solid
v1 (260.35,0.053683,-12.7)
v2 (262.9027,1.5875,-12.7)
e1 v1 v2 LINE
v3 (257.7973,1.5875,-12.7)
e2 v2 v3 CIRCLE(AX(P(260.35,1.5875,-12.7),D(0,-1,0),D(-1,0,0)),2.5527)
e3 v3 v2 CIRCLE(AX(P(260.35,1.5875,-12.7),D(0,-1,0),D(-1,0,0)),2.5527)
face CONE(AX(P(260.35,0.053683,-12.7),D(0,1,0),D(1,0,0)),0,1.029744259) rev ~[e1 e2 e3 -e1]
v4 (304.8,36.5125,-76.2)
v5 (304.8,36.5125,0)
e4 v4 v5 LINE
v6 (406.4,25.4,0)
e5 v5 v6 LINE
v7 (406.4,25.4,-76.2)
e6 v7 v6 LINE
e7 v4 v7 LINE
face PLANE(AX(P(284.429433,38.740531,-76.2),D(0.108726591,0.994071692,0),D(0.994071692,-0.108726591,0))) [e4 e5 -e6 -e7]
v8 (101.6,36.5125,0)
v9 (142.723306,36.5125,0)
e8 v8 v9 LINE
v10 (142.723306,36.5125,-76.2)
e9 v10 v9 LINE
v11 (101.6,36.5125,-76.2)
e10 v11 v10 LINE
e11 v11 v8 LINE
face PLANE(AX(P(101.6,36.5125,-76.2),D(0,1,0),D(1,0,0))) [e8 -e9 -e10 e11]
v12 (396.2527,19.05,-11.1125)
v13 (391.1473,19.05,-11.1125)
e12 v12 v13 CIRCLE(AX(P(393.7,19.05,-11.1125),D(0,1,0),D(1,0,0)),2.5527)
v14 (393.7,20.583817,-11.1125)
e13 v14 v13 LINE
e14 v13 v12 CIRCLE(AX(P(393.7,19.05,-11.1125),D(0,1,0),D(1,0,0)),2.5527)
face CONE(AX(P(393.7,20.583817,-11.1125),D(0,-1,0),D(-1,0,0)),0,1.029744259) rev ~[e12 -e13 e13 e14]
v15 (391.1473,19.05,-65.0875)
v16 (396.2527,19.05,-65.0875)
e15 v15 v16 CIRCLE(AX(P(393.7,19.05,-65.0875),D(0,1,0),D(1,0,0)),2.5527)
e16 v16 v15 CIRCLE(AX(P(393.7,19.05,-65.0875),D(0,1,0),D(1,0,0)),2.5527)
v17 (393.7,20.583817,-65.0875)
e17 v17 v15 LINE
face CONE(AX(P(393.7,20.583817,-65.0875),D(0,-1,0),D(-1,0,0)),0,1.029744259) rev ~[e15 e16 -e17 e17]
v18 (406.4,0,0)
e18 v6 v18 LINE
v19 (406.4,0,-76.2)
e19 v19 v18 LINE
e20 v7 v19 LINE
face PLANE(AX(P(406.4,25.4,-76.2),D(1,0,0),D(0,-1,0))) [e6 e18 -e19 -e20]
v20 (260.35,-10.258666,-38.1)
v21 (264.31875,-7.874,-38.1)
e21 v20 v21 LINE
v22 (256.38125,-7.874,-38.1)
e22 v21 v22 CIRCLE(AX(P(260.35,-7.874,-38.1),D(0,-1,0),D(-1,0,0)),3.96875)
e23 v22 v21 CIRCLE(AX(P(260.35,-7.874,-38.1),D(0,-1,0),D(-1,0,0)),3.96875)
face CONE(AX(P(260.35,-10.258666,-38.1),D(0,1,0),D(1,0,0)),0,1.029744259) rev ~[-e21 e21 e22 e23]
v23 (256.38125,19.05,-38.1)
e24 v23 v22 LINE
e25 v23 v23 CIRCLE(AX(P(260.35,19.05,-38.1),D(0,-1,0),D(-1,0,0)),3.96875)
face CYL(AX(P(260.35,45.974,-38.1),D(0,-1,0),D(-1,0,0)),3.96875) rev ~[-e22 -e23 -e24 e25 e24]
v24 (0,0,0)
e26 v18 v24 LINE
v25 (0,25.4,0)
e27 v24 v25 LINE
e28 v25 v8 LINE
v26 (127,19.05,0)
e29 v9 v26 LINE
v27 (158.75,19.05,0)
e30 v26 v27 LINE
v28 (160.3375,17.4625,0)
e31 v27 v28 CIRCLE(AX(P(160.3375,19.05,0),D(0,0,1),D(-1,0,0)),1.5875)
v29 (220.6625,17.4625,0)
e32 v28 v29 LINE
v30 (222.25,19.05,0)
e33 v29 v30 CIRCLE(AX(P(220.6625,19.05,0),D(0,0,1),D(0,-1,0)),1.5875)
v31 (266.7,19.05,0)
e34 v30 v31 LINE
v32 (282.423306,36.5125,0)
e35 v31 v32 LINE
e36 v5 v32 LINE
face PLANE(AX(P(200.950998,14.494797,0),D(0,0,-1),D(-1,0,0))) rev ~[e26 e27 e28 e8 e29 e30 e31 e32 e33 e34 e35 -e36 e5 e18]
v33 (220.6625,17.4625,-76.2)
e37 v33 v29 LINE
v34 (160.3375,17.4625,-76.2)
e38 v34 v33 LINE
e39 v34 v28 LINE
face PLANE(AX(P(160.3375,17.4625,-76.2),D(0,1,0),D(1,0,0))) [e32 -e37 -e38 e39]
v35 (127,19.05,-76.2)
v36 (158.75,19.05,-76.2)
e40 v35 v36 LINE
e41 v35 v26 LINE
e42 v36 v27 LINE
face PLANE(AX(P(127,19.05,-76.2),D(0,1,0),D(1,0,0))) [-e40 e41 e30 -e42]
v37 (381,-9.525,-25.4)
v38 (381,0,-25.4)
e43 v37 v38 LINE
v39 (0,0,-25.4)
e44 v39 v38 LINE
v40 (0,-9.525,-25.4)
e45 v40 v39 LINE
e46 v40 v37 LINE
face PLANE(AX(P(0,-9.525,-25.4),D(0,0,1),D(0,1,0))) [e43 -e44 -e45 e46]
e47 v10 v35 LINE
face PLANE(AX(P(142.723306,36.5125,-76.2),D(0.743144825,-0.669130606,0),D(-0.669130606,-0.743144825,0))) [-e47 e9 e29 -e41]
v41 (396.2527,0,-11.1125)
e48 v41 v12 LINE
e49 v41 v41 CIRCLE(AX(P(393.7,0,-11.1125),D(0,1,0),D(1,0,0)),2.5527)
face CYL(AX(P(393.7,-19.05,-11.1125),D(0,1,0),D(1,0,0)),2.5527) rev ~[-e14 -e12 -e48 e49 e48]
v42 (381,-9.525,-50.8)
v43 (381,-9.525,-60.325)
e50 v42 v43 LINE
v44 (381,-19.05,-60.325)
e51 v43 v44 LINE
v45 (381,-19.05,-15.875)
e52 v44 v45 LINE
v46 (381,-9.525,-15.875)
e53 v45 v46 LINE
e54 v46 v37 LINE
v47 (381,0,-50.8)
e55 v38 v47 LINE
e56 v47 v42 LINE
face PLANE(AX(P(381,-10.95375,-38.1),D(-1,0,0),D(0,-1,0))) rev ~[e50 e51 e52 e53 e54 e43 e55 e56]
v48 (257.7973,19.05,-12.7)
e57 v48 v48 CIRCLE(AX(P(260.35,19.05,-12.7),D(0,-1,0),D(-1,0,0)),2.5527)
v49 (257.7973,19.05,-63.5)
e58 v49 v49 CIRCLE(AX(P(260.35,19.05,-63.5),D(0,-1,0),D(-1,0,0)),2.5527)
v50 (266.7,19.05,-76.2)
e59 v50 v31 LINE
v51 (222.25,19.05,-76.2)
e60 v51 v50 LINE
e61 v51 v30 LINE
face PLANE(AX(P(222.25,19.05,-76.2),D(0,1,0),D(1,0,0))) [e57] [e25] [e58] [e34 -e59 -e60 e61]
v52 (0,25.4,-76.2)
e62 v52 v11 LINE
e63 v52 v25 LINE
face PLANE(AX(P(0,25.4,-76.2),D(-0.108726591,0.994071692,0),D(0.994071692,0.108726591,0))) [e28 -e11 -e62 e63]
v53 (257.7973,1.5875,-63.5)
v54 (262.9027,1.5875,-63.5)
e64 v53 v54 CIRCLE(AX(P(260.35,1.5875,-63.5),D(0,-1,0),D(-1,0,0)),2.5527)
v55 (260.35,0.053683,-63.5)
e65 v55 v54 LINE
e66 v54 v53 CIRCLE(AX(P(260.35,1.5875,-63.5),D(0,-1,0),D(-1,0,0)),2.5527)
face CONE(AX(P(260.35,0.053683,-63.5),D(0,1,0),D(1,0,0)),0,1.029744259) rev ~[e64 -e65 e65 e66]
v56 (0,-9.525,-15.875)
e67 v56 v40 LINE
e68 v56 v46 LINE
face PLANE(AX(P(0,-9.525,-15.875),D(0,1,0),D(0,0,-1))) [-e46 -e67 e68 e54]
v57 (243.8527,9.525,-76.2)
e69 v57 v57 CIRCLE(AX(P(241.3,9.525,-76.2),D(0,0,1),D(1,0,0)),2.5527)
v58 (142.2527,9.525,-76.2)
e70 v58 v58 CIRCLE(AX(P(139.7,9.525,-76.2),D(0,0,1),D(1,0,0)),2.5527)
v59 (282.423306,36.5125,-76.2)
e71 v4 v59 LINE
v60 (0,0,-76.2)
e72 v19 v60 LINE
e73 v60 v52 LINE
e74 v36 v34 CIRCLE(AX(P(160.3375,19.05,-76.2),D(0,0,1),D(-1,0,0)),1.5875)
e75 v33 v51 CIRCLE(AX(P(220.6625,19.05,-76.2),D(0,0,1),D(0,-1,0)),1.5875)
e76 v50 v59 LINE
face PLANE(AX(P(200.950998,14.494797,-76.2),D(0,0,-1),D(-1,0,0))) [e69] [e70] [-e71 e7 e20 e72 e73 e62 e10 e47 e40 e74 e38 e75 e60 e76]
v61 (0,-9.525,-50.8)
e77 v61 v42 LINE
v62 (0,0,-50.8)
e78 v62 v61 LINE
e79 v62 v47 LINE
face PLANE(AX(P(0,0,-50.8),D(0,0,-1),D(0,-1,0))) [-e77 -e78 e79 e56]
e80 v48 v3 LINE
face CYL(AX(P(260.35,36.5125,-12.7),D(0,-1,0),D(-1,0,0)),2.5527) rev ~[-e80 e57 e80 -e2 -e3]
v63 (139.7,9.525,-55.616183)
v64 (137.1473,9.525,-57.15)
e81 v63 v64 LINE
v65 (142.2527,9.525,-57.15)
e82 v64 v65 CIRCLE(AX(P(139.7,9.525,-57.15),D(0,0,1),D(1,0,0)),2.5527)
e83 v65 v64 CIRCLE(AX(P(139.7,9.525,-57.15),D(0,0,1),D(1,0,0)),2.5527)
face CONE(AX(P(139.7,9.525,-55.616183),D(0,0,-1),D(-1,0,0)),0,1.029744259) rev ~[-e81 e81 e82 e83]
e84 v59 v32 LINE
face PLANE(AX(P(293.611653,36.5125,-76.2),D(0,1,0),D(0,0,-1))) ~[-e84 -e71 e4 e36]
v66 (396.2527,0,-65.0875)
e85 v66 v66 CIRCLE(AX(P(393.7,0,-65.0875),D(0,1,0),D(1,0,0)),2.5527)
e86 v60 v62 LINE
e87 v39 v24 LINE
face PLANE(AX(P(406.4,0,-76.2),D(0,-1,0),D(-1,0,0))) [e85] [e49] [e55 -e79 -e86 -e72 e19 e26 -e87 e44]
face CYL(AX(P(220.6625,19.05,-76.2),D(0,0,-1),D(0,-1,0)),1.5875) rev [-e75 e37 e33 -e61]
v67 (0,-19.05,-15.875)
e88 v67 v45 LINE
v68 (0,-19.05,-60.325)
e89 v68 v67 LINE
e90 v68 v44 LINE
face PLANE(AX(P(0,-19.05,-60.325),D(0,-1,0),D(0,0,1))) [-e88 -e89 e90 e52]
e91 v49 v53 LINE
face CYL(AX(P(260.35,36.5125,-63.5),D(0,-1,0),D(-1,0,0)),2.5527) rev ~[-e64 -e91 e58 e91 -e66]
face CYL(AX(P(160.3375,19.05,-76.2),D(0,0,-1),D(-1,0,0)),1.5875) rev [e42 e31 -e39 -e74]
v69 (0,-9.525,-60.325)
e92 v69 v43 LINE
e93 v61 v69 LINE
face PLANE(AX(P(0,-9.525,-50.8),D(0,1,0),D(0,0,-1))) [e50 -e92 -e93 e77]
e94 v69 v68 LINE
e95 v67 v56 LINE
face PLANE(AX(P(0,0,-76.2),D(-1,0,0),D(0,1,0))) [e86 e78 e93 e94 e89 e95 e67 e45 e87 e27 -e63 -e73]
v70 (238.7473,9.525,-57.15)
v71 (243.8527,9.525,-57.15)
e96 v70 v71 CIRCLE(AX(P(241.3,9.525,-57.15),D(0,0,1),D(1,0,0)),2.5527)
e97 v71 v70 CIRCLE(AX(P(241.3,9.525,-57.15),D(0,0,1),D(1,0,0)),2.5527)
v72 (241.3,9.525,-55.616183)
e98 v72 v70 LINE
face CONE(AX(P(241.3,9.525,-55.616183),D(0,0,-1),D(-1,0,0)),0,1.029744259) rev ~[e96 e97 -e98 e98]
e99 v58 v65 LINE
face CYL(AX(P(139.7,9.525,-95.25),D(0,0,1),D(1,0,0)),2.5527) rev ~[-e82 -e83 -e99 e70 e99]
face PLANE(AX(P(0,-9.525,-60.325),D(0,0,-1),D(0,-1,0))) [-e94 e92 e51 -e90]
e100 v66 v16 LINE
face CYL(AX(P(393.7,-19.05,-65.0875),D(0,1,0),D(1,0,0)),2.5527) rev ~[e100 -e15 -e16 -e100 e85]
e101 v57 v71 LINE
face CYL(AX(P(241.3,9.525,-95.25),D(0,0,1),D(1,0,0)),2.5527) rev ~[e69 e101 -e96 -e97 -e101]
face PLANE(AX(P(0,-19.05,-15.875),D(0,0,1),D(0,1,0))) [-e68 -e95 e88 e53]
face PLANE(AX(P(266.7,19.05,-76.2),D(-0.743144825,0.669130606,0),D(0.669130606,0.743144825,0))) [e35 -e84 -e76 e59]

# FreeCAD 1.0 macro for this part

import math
import FreeCAD as App
import Part
import Sketcher
from FreeCAD import Vector
Q = App.Units.Quantity


def edges_at(feature, points):
    """Names of the edges that pass closest to the given points."""
    edges = feature.Shape.Edges
    near = lambda p: min(range(len(edges)), key=lambda i: edges[i].distToShape(Part.Vertex(*p))[0])
    return sorted({f"Edge{near(p) + 1}" for p in points})

doc = App.newDocument("Part")
body = doc.addObject("PartDesign::Body", "Body")

# Sketch on XY plane
sketch1 = body.newObject("Sketcher::SketchObject", "Sketch")
sketch1.AttachmentSupport = (doc.getObject("XY_Plane"), [""])
sketch1.MapMode = "FlatFace"
sketch1.AttachmentOffset = App.Placement(Vector(0, 0, -3 * 25.4), App.Rotation())
sketch1.addGeometry(Part.LineSegment(Vector(0, 0, 0), Vector(0, 25.4, 0)), False)
sketch1.addGeometry(Part.LineSegment(Vector(0, 25.4, 0), Vector(101.6, 36.5, 0)), False)
sketch1.addGeometry(Part.LineSegment(Vector(101.6, 36.5, 0), Vector(142.7, 36.5, 0)), False)
sketch1.addGeometry(Part.LineSegment(Vector(142.7, 36.5, 0), Vector(127, 19.1, 0)), False)
sketch1.addGeometry(Part.LineSegment(Vector(127, 19.1, 0), Vector(158.8, 19.1, 0)), False)
sketch1.addGeometry(Part.ArcOfCircle(Part.Circle(Vector(160.3, 19.1, 0), Vector(0, 0, 1), 1.6), math.radians(180), math.radians(270)), False)
sketch1.addGeometry(Part.LineSegment(Vector(160.3, 17.5, 0), Vector(220.7, 17.5, 0)), False)
sketch1.addGeometry(Part.ArcOfCircle(Part.Circle(Vector(220.7, 19.1, 0), Vector(0, 0, 1), 1.6), math.radians(-90), math.radians(0)), False)
sketch1.addGeometry(Part.LineSegment(Vector(222.2, 19.1, 0), Vector(266.7, 19.1, 0)), False)
sketch1.addGeometry(Part.LineSegment(Vector(266.7, 19.1, 0), Vector(284.4, 38.7, 0)), False)
sketch1.addGeometry(Part.LineSegment(Vector(284.4, 38.7, 0), Vector(406.4, 25.4, 0)), False)
sketch1.addGeometry(Part.LineSegment(Vector(406.4, 25.4, 0), Vector(406.4, 0, 0)), False)
sketch1.addGeometry(Part.LineSegment(Vector(406.4, 0, 0), Vector(0, 0, 0)), False)
sketch1.addConstraint(Sketcher.Constraint("Coincident", 0, 2, 1, 1))
sketch1.addConstraint(Sketcher.Constraint("Coincident", 1, 2, 2, 1))
sketch1.addConstraint(Sketcher.Constraint("Coincident", 2, 2, 3, 1))
sketch1.addConstraint(Sketcher.Constraint("Coincident", 3, 2, 4, 1))
sketch1.addConstraint(Sketcher.Constraint("Coincident", 4, 2, 5, 1))
sketch1.addConstraint(Sketcher.Constraint("Tangent", 5, 2, 6, 1))
sketch1.addConstraint(Sketcher.Constraint("Tangent", 6, 2, 7, 1))
sketch1.addConstraint(Sketcher.Constraint("Coincident", 7, 2, 8, 1))
sketch1.addConstraint(Sketcher.Constraint("Coincident", 8, 2, 9, 1))
sketch1.addConstraint(Sketcher.Constraint("Coincident", 9, 2, 10, 1))
sketch1.addConstraint(Sketcher.Constraint("Coincident", 10, 2, 11, 1))
sketch1.addConstraint(Sketcher.Constraint("Coincident", 11, 2, 12, 1))
sketch1.addConstraint(Sketcher.Constraint("Coincident", 12, 2, 0, 1))
sketch1.addConstraint(Sketcher.Constraint("Vertical", 0))
sketch1.addConstraint(Sketcher.Constraint("Horizontal", 2))
sketch1.addConstraint(Sketcher.Constraint("Horizontal", 4))
sketch1.addConstraint(Sketcher.Constraint("Horizontal", 6))
sketch1.addConstraint(Sketcher.Constraint("Horizontal", 8))
sketch1.addConstraint(Sketcher.Constraint("Vertical", 11))
sketch1.addConstraint(Sketcher.Constraint("Horizontal", 12))
sketch1.addConstraint(Sketcher.Constraint("Coincident", 12, 2, -1, 1))
sketch1.addConstraint(Sketcher.Constraint("Equal", 5, 7))
sketch1.addConstraint(Sketcher.Constraint("Parallel", 3, 9))
sketch1.addConstraint(Sketcher.Constraint("Horizontal", 7, 3, 3, 2))
sketch1.addConstraint(Sketcher.Constraint("Horizontal", 4, 2, 7, 2))
sketch1.addConstraint(Sketcher.Constraint("Horizontal", 0, 2, 10, 2))
sketch1.addConstraint(Sketcher.Constraint("DistanceX", 12, 2, 12, 1, Q("16 in")))
sketch1.addConstraint(Sketcher.Constraint("DistanceY", 0, 1, 0, 2, Q("1 in")))
sketch1.addConstraint(Sketcher.Constraint("DistanceX", -1, 1, 1, 2, Q("4 in")))
sketch1.addConstraint(Sketcher.Constraint("DistanceX", -1, 1, 3, 2, Q("5 in")))
sketch1.addConstraint(Sketcher.Constraint("Angle", 3, Q("-132 deg")))
sketch1.addConstraint(Sketcher.Constraint("Radius", 5, Q("0.0625 in")))
sketch1.addConstraint(Sketcher.Constraint("DistanceX", 4, 1, 4, 2, Q("1.25 in")))
sketch1.addConstraint(Sketcher.Constraint("DistanceX", 8, 1, 8, 2, Q("1.75 in")))
sketch1.addConstraint(Sketcher.Constraint("DistanceX", -1, 1, 8, 2, Q("10.5 in")))
sketch1.addConstraint(Sketcher.Constraint("DistanceY", -1, 1, 5, 3, Q("0.75 in")))
sketch1.addConstraint(Sketcher.Constraint("DistanceY", 5, 2, 2, 2, Q("0.75 in")))
sketch1.addConstraint(Sketcher.Constraint("DistanceY", -1, 1, 9, 2, Q("38.740531 mm")))
pad1 = body.newObject("PartDesign::Pad", "Pad")
pad1.Profile = sketch1
pad1.Length = Q("3 in")

# Sketch on YZ plane
sketch2 = body.newObject("Sketcher::SketchObject", "Sketch001")
sketch2.AttachmentSupport = (doc.getObject("YZ_Plane"), [""])
sketch2.MapMode = "FlatFace"
sketch2.addGeometry(Part.LineSegment(Vector(0, -25, 0), Vector(0, -51, 0)), False)
sketch2.addGeometry(Part.LineSegment(Vector(0, -51, 0), Vector(-10, -51, 0)), False)
sketch2.addGeometry(Part.LineSegment(Vector(-10, -51, 0), Vector(-10, -60, 0)), False)
sketch2.addGeometry(Part.LineSegment(Vector(-10, -60, 0), Vector(-19, -60, 0)), False)
sketch2.addGeometry(Part.LineSegment(Vector(-19, -60, 0), Vector(-19, -16, 0)), False)
sketch2.addGeometry(Part.LineSegment(Vector(-19, -16, 0), Vector(-10, -16, 0)), False)
sketch2.addGeometry(Part.LineSegment(Vector(-10, -16, 0), Vector(-10, -25, 0)), False)
sketch2.addGeometry(Part.LineSegment(Vector(-10, -25, 0), Vector(0, -25, 0)), False)
sketch2.addConstraint(Sketcher.Constraint("Coincident", 0, 2, 1, 1))
sketch2.addConstraint(Sketcher.Constraint("Coincident", 1, 2, 2, 1))
sketch2.addConstraint(Sketcher.Constraint("Coincident", 2, 2, 3, 1))
sketch2.addConstraint(Sketcher.Constraint("Coincident", 3, 2, 4, 1))
sketch2.addConstraint(Sketcher.Constraint("Coincident", 4, 2, 5, 1))
sketch2.addConstraint(Sketcher.Constraint("Coincident", 5, 2, 6, 1))
sketch2.addConstraint(Sketcher.Constraint("Coincident", 6, 2, 7, 1))
sketch2.addConstraint(Sketcher.Constraint("Coincident", 7, 2, 0, 1))
sketch2.addConstraint(Sketcher.Constraint("Vertical", 0))
sketch2.addConstraint(Sketcher.Constraint("Horizontal", 1))
sketch2.addConstraint(Sketcher.Constraint("Vertical", 2))
sketch2.addConstraint(Sketcher.Constraint("Horizontal", 3))
sketch2.addConstraint(Sketcher.Constraint("Vertical", 4))
sketch2.addConstraint(Sketcher.Constraint("Horizontal", 5))
sketch2.addConstraint(Sketcher.Constraint("Vertical", 6))
sketch2.addConstraint(Sketcher.Constraint("Horizontal", 7))
sketch2.addConstraint(Sketcher.Constraint("PointOnObject", 0, 2, -2))
sketch2.addConstraint(Sketcher.Constraint("Vertical", 2, 2, 5, 2))
sketch2.addConstraint(Sketcher.Constraint("Equal", 1, 3))
sketch2.addConstraint(Sketcher.Constraint("Equal", 7, 2))
sketch2.addConstraint(Sketcher.Constraint("Equal", 2, 6))
sketch2.addConstraint(Sketcher.Constraint("DistanceY", 0, 2, 0, 1, Q("1 in")))
sketch2.addConstraint(Sketcher.Constraint("DistanceY", 0, 2, -1, 1, Q("2 in")))
sketch2.addConstraint(Sketcher.Constraint("DistanceY", 4, 1, 4, 2, Q("1.75 in")))
pad2 = body.newObject("PartDesign::Pad", "Pad001")
pad2.Profile = sketch2
pad2.Length = Q("15 in")

# Sketch on XZ plane
sketch3 = body.newObject("Sketcher::SketchObject", "Sketch002")
sketch3.AttachmentSupport = (doc.getObject("XZ_Plane"), [""])
sketch3.MapMode = "FlatFace"
sketch3.addGeometry(Part.Circle(Vector(393.7, -65.1, 0), Vector(0, 0, 1), 2.6), False)
sketch3.addGeometry(Part.Circle(Vector(393.7, -11.1, 0), Vector(0, 0, 1), 2.6), False)
sketch3.addConstraint(Sketcher.Constraint("Equal", 0, 1))
sketch3.addConstraint(Sketcher.Constraint("Vertical", 0, 3, 1, 3))
sketch3.addConstraint(Sketcher.Constraint("Diameter", 0, Q("0.201 in")))
sketch3.addConstraint(Sketcher.Constraint("DistanceX", -1, 1, 0, 3, Q("15.5 in")))
sketch3.addConstraint(Sketcher.Constraint("DistanceY", 0, 3, -1, 1, Q("2.5625 in")))
sketch3.addConstraint(Sketcher.Constraint("DistanceY", 1, 3, -1, 1, Q("0.4375 in")))
doc.recompute()
hole = body.newObject("PartDesign::Hole", "Hole")
hole.Profile = sketch3
hole.ThreadType = "None"
hole.Diameter = Q("0.201 in")
hole.DepthType = "Dimension"
hole.Depth = Q("0.75 in")
hole.DrillPoint = "Angled"
hole.DrillPointAngle = 118

# Sketch on XY plane
sketch4 = body.newObject("Sketcher::SketchObject", "Sketch003")
sketch4.AttachmentSupport = (doc.getObject("XY_Plane"), [""])
sketch4.MapMode = "FlatFace"
sketch4.AttachmentOffset = App.Placement(Vector(0, 0, -3 * 25.4), App.Rotation())
sketch4.addGeometry(Part.Circle(Vector(139.7, 9.5, 0), Vector(0, 0, 1), 2.6), False)
sketch4.addGeometry(Part.Circle(Vector(241.3, 9.5, 0), Vector(0, 0, 1), 2.6), False)
sketch4.addConstraint(Sketcher.Constraint("Equal", 0, 1))
sketch4.addConstraint(Sketcher.Constraint("Horizontal", 0, 3, 1, 3))
sketch4.addConstraint(Sketcher.Constraint("Diameter", 0, Q("0.201 in")))
sketch4.addConstraint(Sketcher.Constraint("DistanceX", 0, 3, 1, 3, Q("4 in")))
sketch4.addConstraint(Sketcher.Constraint("DistanceX", -1, 1, 0, 3, Q("5.5 in")))
sketch4.addConstraint(Sketcher.Constraint("DistanceY", -1, 1, 0, 3, Q("0.375 in")))
doc.recompute()
hole2 = body.newObject("PartDesign::Hole", "Hole001")
hole2.Profile = sketch4
hole2.ThreadType = "None"
hole2.Diameter = Q("0.201 in")
hole2.DepthType = "Dimension"
hole2.Depth = Q("0.75 in")
hole2.DrillPoint = "Angled"
hole2.DrillPointAngle = 118
hole2.Reversed = True

# Sketch on XZ plane
sketch5 = body.newObject("Sketcher::SketchObject", "Sketch004")
sketch5.AttachmentSupport = (doc.getObject("XZ_Plane"), [""])
sketch5.MapMode = "FlatFace"
sketch5.AttachmentOffset = App.Placement(Vector(0, 0, -0.75 * 25.4), App.Rotation())
sketch5.addGeometry(Part.Circle(Vector(260.4, -38.1, 0), Vector(0, 0, 1), 4), False)
sketch5.addConstraint(Sketcher.Constraint("Diameter", 0, Q("0.3125 in")))
sketch5.addConstraint(Sketcher.Constraint("DistanceY", 0, 3, -1, 1, Q("1.5 in")))
sketch5.addConstraint(Sketcher.Constraint("DistanceX", -1, 1, 0, 3, Q("10.25 in")))
doc.recompute()
hole3 = body.newObject("PartDesign::Hole", "Hole002")
hole3.Profile = sketch5
hole3.ThreadType = "None"
hole3.Diameter = Q("0.3125 in")
hole3.DepthType = "Dimension"
hole3.Depth = Q("1.06 in")
hole3.DrillPoint = "Angled"
hole3.DrillPointAngle = 118
hole3.Reversed = True

# Sketch on XZ plane
sketch6 = body.newObject("Sketcher::SketchObject", "Sketch005")
sketch6.AttachmentSupport = (doc.getObject("XZ_Plane"), [""])
sketch6.MapMode = "FlatFace"
sketch6.AttachmentOffset = App.Placement(Vector(0, 0, -0.75 * 25.4), App.Rotation())
sketch6.addGeometry(Part.Circle(Vector(260.4, -12.7, 0), Vector(0, 0, 1), 2.6), False)
sketch6.addGeometry(Part.Circle(Vector(260.4, -63.5, 0), Vector(0, 0, 1), 2.6), False)
sketch6.addConstraint(Sketcher.Constraint("Equal", 0, 1))
sketch6.addConstraint(Sketcher.Constraint("Vertical", 0, 3, 1, 3))
sketch6.addConstraint(Sketcher.Constraint("Diameter", 0, Q("0.201 in")))
sketch6.addConstraint(Sketcher.Constraint("DistanceY", 1, 3, 0, 3, Q("2 in")))
sketch6.addConstraint(Sketcher.Constraint("DistanceY", 0, 3, -1, 1, Q("0.5 in")))
sketch6.addConstraint(Sketcher.Constraint("DistanceX", -1, 1, 0, 3, Q("10.25 in")))
doc.recompute()
hole4 = body.newObject("PartDesign::Hole", "Hole003")
hole4.Profile = sketch6
hole4.ThreadType = "None"
hole4.Diameter = Q("0.201 in")
hole4.DepthType = "Dimension"
hole4.Depth = Q("0.6875 in")
hole4.DrillPoint = "Angled"
hole4.DrillPointAngle = 118
hole4.Reversed = True
doc.recompute()

chamfer = body.newObject("PartDesign::Chamfer", "Chamfer")
chamfer.Base = (hole4, edges_at(hole4, [(284.429, 38.741, -38.1)]))
chamfer.ChamferType = "Two distances"
chamfer.Size = 20.49205
chamfer.Size2 = 2.998111

doc.recompute()
